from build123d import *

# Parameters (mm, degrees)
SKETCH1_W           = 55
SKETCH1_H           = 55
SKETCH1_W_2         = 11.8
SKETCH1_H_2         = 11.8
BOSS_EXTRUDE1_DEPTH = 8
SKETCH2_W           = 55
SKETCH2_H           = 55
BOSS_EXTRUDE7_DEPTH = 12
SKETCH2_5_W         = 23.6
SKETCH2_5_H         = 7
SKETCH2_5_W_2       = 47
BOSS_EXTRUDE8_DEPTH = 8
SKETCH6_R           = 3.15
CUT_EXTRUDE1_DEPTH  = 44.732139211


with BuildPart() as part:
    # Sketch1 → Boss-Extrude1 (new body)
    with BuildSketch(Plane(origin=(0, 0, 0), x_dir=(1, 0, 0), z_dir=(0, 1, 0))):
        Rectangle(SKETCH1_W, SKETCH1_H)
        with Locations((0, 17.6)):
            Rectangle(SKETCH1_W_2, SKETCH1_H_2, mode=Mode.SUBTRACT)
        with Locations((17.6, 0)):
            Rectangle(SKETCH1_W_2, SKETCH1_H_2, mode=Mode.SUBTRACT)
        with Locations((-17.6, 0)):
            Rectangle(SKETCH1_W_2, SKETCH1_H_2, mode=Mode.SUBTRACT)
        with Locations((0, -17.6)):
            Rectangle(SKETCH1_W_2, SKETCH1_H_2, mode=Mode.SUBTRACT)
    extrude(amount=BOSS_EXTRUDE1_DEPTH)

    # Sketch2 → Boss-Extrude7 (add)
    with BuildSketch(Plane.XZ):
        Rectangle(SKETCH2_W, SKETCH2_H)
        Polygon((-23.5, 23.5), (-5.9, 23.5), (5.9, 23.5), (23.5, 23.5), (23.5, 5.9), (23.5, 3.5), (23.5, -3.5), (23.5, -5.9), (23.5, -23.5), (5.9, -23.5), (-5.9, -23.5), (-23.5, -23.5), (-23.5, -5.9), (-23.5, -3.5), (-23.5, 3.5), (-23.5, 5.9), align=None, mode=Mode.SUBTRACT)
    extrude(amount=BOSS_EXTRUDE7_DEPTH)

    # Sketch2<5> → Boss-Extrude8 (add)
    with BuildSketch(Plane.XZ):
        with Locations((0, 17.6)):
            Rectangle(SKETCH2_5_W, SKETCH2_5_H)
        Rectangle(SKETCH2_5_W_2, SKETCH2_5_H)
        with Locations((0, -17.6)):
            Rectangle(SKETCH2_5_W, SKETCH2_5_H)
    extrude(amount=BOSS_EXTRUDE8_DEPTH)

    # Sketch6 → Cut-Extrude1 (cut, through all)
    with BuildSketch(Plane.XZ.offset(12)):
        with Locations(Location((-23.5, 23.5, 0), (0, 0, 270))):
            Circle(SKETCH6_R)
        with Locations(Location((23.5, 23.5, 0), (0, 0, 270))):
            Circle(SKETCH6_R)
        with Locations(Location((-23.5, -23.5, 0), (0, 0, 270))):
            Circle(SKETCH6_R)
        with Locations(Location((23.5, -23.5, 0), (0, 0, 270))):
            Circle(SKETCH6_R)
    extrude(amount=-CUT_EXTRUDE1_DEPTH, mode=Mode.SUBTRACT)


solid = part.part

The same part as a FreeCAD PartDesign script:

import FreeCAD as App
import Part
import Sketcher
from FreeCAD import Vector
Q = App.Units.Quantity

doc = App.newDocument("Part")
body = doc.addObject("PartDesign::Body", "Body")

sketch1 = body.newObject("Sketcher::SketchObject", "Sketch")
sketch1.AttachmentSupport = (doc.getObject("XZ_Plane"), [""])
sketch1.MapMode = "FlatFace"
sketch1.addGeometry([
    Part.LineSegment(Vector(-28, -28, 0), Vector(-28, 28, 0)),
    Part.LineSegment(Vector(-28, 28, 0), Vector(28, 28, 0)),
    Part.LineSegment(Vector(28, 28, 0), Vector(28, -28, 0)),
    Part.LineSegment(Vector(28, -28, 0), Vector(-28, -28, 0)),
    Part.LineSegment(Vector(6, 24, 0), Vector(-6, 24, 0)),
    Part.LineSegment(Vector(-6, 24, 0), Vector(-6, 12, 0)),
    Part.LineSegment(Vector(-6, 12, 0), Vector(6, 12, 0)),
    Part.LineSegment(Vector(6, 12, 0), Vector(6, 24, 0)),
    Part.LineSegment(Vector(-12, 6, 0), Vector(-24, 6, 0)),
    Part.LineSegment(Vector(-24, 6, 0), Vector(-24, -6, 0)),
    Part.LineSegment(Vector(-24, -6, 0), Vector(-12, -6, 0)),
    Part.LineSegment(Vector(-12, -6, 0), Vector(-12, 6, 0)),
    Part.LineSegment(Vector(24, 6, 0), Vector(12, 6, 0)),
    Part.LineSegment(Vector(12, 6, 0), Vector(12, -6, 0)),
    Part.LineSegment(Vector(12, -6, 0), Vector(24, -6, 0)),
    Part.LineSegment(Vector(24, -6, 0), Vector(24, 6, 0)),
    Part.LineSegment(Vector(6, -12, 0), Vector(-6, -12, 0)),
    Part.LineSegment(Vector(-6, -12, 0), Vector(-6, -24, 0)),
    Part.LineSegment(Vector(-6, -24, 0), Vector(6, -24, 0)),
    Part.LineSegment(Vector(6, -24, 0), Vector(6, -12, 0)),
], False)
sketch1.addConstraint([
    Sketcher.Constraint("Coincident", 0, 2, 1, 1),
    Sketcher.Constraint("Coincident", 1, 2, 2, 1),
    Sketcher.Constraint("Coincident", 2, 2, 3, 1),
    Sketcher.Constraint("Coincident", 3, 2, 0, 1),
    Sketcher.Constraint("Coincident", 4, 2, 5, 1),
    Sketcher.Constraint("Coincident", 5, 2, 6, 1),
    Sketcher.Constraint("Coincident", 6, 2, 7, 1),
    Sketcher.Constraint("Coincident", 7, 2, 4, 1),
    Sketcher.Constraint("Coincident", 8, 2, 9, 1),
    Sketcher.Constraint("Coincident", 9, 2, 10, 1),
    Sketcher.Constraint("Coincident", 10, 2, 11, 1),
    Sketcher.Constraint("Coincident", 11, 2, 8, 1),
    Sketcher.Constraint("Coincident", 12, 2, 13, 1),
    Sketcher.Constraint("Coincident", 13, 2, 14, 1),
    Sketcher.Constraint("Coincident", 14, 2, 15, 1),
    Sketcher.Constraint("Coincident", 15, 2, 12, 1),
    Sketcher.Constraint("Coincident", 16, 2, 17, 1),
    Sketcher.Constraint("Coincident", 17, 2, 18, 1),
    Sketcher.Constraint("Coincident", 18, 2, 19, 1),
    Sketcher.Constraint("Coincident", 19, 2, 16, 1),
    Sketcher.Constraint("Vertical", 0),
    Sketcher.Constraint("Horizontal", 1),
    Sketcher.Constraint("Vertical", 2),
    Sketcher.Constraint("Horizontal", 3),
    Sketcher.Constraint("Horizontal", 4),
    Sketcher.Constraint("Vertical", 5),
    Sketcher.Constraint("Horizontal", 6),
    Sketcher.Constraint("Vertical", 7),
    Sketcher.Constraint("Horizontal", 8),
    Sketcher.Constraint("Vertical", 9),
    Sketcher.Constraint("Horizontal", 10),
    Sketcher.Constraint("Vertical", 11),
    Sketcher.Constraint("Horizontal", 12),
    Sketcher.Constraint("Vertical", 13),
    Sketcher.Constraint("Horizontal", 14),
    Sketcher.Constraint("Vertical", 15),
    Sketcher.Constraint("Horizontal", 16),
    Sketcher.Constraint("Vertical", 17),
    Sketcher.Constraint("Horizontal", 18),
    Sketcher.Constraint("Vertical", 19),
    Sketcher.Constraint("Symmetric", 0, 2, 2, 2, -1, 1),
    Sketcher.Constraint("Symmetric", 10, 2, 12, 2, -1, 1),
    Sketcher.Constraint("Symmetric", 8, 2, 14, 2, -1, 1),
    Sketcher.Constraint("Symmetric", 6, 2, 16, 2, -1, 1),
    Sketcher.Constraint("Symmetric", 4, 2, 18, 2, -1, 1),
    Sketcher.Constraint("Horizontal", 11, 2, 12, 2),
    Sketcher.Constraint("Vertical", 5, 2, 16, 2),
    Sketcher.Constraint("Equal", 6, 8),
    Sketcher.Constraint("Equal", 3, 0),
    Sketcher.Constraint("Equal", 18, 5),
    Sketcher.Constraint("Equal", 7, 9),
    Sketcher.Constraint("DistanceX", 1, 1, 1, 2, Q("55 mm")),
    Sketcher.Constraint("DistanceX", 4, 2, 4, 1, Q("11.8 mm")),
    Sketcher.Constraint("DistanceY", 4, 2, 0, 2, Q("4 mm")),
    Sketcher.Constraint("DistanceX", 0, 2, 8, 2, Q("4 mm")),
])
pad1 = body.newObject("PartDesign::Pad", "Pad")
pad1.Profile = sketch1
pad1.Length = 8
pad1.Reversed = True

sketch2 = body.newObject("Sketcher::SketchObject", "Sketch001")
sketch2.AttachmentSupport = (doc.getObject("XZ_Plane"), [""])
sketch2.MapMode = "FlatFace"
sketch2.addGeometry([
    Part.LineSegment(Vector(-28, 28, 0), Vector(-28, -28, 0)),
    Part.LineSegment(Vector(-28, -28, 0), Vector(28, -28, 0)),
    Part.LineSegment(Vector(28, -28, 0), Vector(28, 28, 0)),
    Part.LineSegment(Vector(28, 28, 0), Vector(-28, 28, 0)),
    Part.LineSegment(Vector(-24, -24, 0), Vector(-24, 24, 0)),
    Part.LineSegment(Vector(-24, 24, 0), Vector(24, 24, 0)),
    Part.LineSegment(Vector(24, 24, 0), Vector(24, -24, 0)),
    Part.LineSegment(Vector(24, -24, 0), Vector(-24, -24, 0)),
], False)
sketch2.addConstraint([
    Sketcher.Constraint("Coincident", 0, 2, 1, 1),
    Sketcher.Constraint("Coincident", 1, 2, 2, 1),
    Sketcher.Constraint("Coincident", 2, 2, 3, 1),
    Sketcher.Constraint("Coincident", 3, 2, 0, 1),
    Sketcher.Constraint("Coincident", 4, 2, 5, 1),
    Sketcher.Constraint("Coincident", 5, 2, 6, 1),
    Sketcher.Constraint("Coincident", 6, 2, 7, 1),
    Sketcher.Constraint("Coincident", 7, 2, 4, 1),
    Sketcher.Constraint("Vertical", 0),
    Sketcher.Constraint("Horizontal", 1),
    Sketcher.Constraint("Vertical", 2),
    Sketcher.Constraint("Horizontal", 3),
    Sketcher.Constraint("Vertical", 4),
    Sketcher.Constraint("Horizontal", 5),
    Sketcher.Constraint("Vertical", 6),
    Sketcher.Constraint("Horizontal", 7),
    Sketcher.Constraint("Symmetric", 0, 2, 2, 2, -1, 1),
    Sketcher.Constraint("Symmetric", 4, 2, 6, 2, -1, 1),
    Sketcher.Constraint("Equal", 3, 0),
    Sketcher.Constraint("Equal", 7, 4),
    Sketcher.Constraint("DistanceX", 1, 1, 1, 2, Q("55 mm")),
    Sketcher.Constraint("DistanceX", 5, 1, 5, 2, Q("47 mm")),
])
pad2 = body.newObject("PartDesign::Pad", "Pad001")
pad2.Profile = sketch2
pad2.Length = 12

sketch3 = body.newObject("Sketcher::SketchObject", "Sketch002")
sketch3.AttachmentSupport = (doc.getObject("XZ_Plane"), [""])
sketch3.MapMode = "FlatFace"
sketch3.addGeometry([
    Part.LineSegment(Vector(-12, 21, 0), Vector(-12, 14, 0)),
    Part.LineSegment(Vector(-12, 14, 0), Vector(12, 14, 0)),
    Part.LineSegment(Vector(12, 14, 0), Vector(12, 21, 0)),
    Part.LineSegment(Vector(12, 21, 0), Vector(-12, 21, 0)),
    Part.LineSegment(Vector(-24, 4, 0), Vector(-24, -4, 0)),
    Part.LineSegment(Vector(-24, -4, 0), Vector(24, -4, 0)),
    Part.LineSegment(Vector(24, -4, 0), Vector(24, 4, 0)),
    Part.LineSegment(Vector(24, 4, 0), Vector(-24, 4, 0)),
    Part.LineSegment(Vector(-12, -14, 0), Vector(-12, -21, 0)),
    Part.LineSegment(Vector(-12, -21, 0), Vector(12, -21, 0)),
    Part.LineSegment(Vector(12, -21, 0), Vector(12, -14, 0)),
    Part.LineSegment(Vector(12, -14, 0), Vector(-12, -14, 0)),
], False)
sketch3.addConstraint([
    Sketcher.Constraint("Coincident", 0, 2, 1, 1),
    Sketcher.Constraint("Coincident", 1, 2, 2, 1),
    Sketcher.Constraint("Coincident", 2, 2, 3, 1),
    Sketcher.Constraint("Coincident", 3, 2, 0, 1),
    Sketcher.Constraint("Coincident", 4, 2, 5, 1),
    Sketcher.Constraint("Coincident", 5, 2, 6, 1),
    Sketcher.Constraint("Coincident", 6, 2, 7, 1),
    Sketcher.Constraint("Coincident", 7, 2, 4, 1),
    Sketcher.Constraint("Coincident", 8, 2, 9, 1),
    Sketcher.Constraint("Coincident", 9, 2, 10, 1),
    Sketcher.Constraint("Coincident", 10, 2, 11, 1),
    Sketcher.Constraint("Coincident", 11, 2, 8, 1),
    Sketcher.Constraint("Vertical", 0),
    Sketcher.Constraint("Horizontal", 1),
    Sketcher.Constraint("Vertical", 2),
    Sketcher.Constraint("Horizontal", 3),
    Sketcher.Constraint("Vertical", 4),
    Sketcher.Constraint("Horizontal", 5),
    Sketcher.Constraint("Vertical", 6),
    Sketcher.Constraint("Horizontal", 7),
    Sketcher.Constraint("Vertical", 8),
    Sketcher.Constraint("Horizontal", 9),
    Sketcher.Constraint("Vertical", 10),
    Sketcher.Constraint("Horizontal", 11),
    Sketcher.Constraint("Symmetric", 4, 2, 6, 2, -1, 1),
    Sketcher.Constraint("Symmetric", 2, 2, 8, 2, -1, 1),
    Sketcher.Constraint("Symmetric", 0, 2, 10, 2, -1, 1),
    Sketcher.Constraint("Vertical", 3, 2, 8, 2),
    Sketcher.Constraint("Equal", 2, 4),
    Sketcher.Constraint("DistanceX", 5, 1, 5, 2, Q("47 mm")),
    Sketcher.Constraint("DistanceY", 0, 2, 0, 1, Q("7 mm")),
    Sketcher.Constraint("DistanceX", 1, 1, 1, 2, Q("23.6 mm")),
    Sketcher.Constraint("DistanceY", -1, 1, 0, 2, Q("14.1 mm")),
])
pad3 = body.newObject("PartDesign::Pad", "Pad002")
pad3.Profile = sketch3
pad3.Length = 8

sketch4 = body.newObject("Sketcher::SketchObject", "Sketch003")
sketch4.AttachmentSupport = (doc.getObject("XZ_Plane"), [""])
sketch4.MapMode = "FlatFace"
sketch4.AttachmentOffset = App.Placement(Vector(0, 0, 12), App.Rotation())
sketch4.addGeometry([
    Part.Circle(Vector(-23.5, 23.5, 0), Vector(0, 0, 1), 3.1),
    Part.Circle(Vector(23.5, 23.5, 0), Vector(0, 0, 1), 3.1),
    Part.Circle(Vector(-23.5, -23.5, 0), Vector(0, 0, 1), 3.1),
    Part.Circle(Vector(23.5, -23.5, 0), Vector(0, 0, 1), 3.1),
], False)
sketch4.addConstraint([
    Sketcher.Constraint("Equal", 0, 1),
    Sketcher.Constraint("Equal", 1, 2),
    Sketcher.Constraint("Equal", 2, 3),
    Sketcher.Constraint("Symmetric", 1, 3, 2, 3, -1, 1),
    Sketcher.Constraint("Symmetric", 0, 3, 3, 3, -1, 1),
    Sketcher.Constraint("Symmetric", 0, 3, 1, 3, -2),
    Sketcher.Constraint("Diameter", 0, Q("6.3 mm")),
    Sketcher.Constraint("DistanceX", 0, 3, 1, 3, Q("47 mm")),
    Sketcher.Constraint("DistanceY", 2, 3, 0, 3, Q("47 mm")),
])
pocket1 = body.newObject("PartDesign::Pocket", "Pocket")
pocket1.Profile = sketch4
pocket1.Type = "ThroughAll"

doc.recompute()
